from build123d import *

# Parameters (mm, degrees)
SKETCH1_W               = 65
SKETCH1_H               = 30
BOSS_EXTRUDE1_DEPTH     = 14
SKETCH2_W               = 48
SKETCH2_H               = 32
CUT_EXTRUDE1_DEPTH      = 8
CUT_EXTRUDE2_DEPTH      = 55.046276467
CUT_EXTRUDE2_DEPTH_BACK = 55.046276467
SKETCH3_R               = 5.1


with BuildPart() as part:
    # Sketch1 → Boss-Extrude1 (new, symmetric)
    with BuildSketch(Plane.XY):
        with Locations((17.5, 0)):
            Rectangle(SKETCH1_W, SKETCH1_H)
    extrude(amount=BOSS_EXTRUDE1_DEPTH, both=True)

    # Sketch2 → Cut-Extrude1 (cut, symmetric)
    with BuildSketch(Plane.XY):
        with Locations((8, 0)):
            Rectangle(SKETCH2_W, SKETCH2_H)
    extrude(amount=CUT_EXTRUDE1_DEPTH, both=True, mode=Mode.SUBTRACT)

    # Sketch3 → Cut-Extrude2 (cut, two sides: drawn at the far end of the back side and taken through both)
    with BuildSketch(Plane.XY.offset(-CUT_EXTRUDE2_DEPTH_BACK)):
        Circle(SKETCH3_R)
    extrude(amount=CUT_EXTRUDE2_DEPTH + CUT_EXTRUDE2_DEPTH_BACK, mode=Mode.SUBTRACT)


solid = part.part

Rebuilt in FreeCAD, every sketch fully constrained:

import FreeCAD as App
import Part
import Sketcher
Q = App.Units.Quantity


def add_polygon(sketch, points):
    """Adds a closed chain of lines whose ends are joined by coincident constraints."""
    first, n = sketch.GeometryCount, len(points)
    for a, b in zip(points, points[1:] + points[:1]):
        sketch.addGeometry(Part.LineSegment(App.Vector(*a, 0), App.Vector(*b, 0)), False)
    for i in range(n):
        sketch.addConstraint(Sketcher.Constraint("Coincident", first + i, 2, first + (i + 1) % n, 1))

doc = App.newDocument("Part")
params = doc.addObject("Spreadsheet::Sheet", "Params")
for row, (alias, value) in enumerate([
    ("sketch1_width", "65 mm"),
    ("sketch1_height", "30 mm"),
    ("pad1_length", "28 mm"),
    ("sketch2_width", "48 mm"),
    ("sketch2_height", "32 mm"),
    ("pocket1_length", "16 mm"),
    ("sketch3_diameter", "10.2 mm"),
], start=1):
    params.set(f"A{row}", alias)
    params.set(f"B{row}", "=" + value)
    params.setAlias(f"B{row}", alias)

body = doc.addObject("PartDesign::Body", "Body")

# Sketch on XY plane
sketch1 = body.newObject("Sketcher::SketchObject", "Sketch")
sketch1.AttachmentSupport = (doc.getObject("XY_Plane"), [""])
sketch1.MapMode = "FlatFace"
add_polygon(sketch1, [(-15, 15), (-15, -15), (50, -15), (50, 15)])  # lines 0-3
sketch1.addConstraint(Sketcher.Constraint("Vertical", 0))
sketch1.addConstraint(Sketcher.Constraint("Horizontal", 1))
sketch1.addConstraint(Sketcher.Constraint("Vertical", 2))
sketch1.addConstraint(Sketcher.Constraint("Horizontal", 3))
sketch1.addConstraint(Sketcher.Constraint("DistanceX", 1, 1, 1, 2, Q("65 mm")))
sketch1.addConstraint(Sketcher.Constraint("DistanceY", 0, 2, 0, 1, Q("30 mm")))
sketch1.addConstraint(Sketcher.Constraint("DistanceX", 0, 2, -1, 1, Q("15 mm")))
sketch1.addConstraint(Sketcher.Constraint("DistanceY", 0, 2, -1, 1, Q("15 mm")))
sketch1.setExpression("Constraints[8]", "Params.sketch1_width")
sketch1.setExpression("Constraints[9]", "Params.sketch1_height")
pad1 = body.newObject("PartDesign::Pad", "Pad")
pad1.Profile = sketch1
pad1.setExpression("Length", "Params.pad1_length")
pad1.Midplane = True

# Sketch on XY plane
sketch2 = body.newObject("Sketcher::SketchObject", "Sketch001")
sketch2.AttachmentSupport = (doc.getObject("XY_Plane"), [""])
sketch2.MapMode = "FlatFace"
add_polygon(sketch2, [(-16, 16), (-16, -16), (32, -16), (32, 16)])  # lines 0-3
sketch2.addConstraint(Sketcher.Constraint("Vertical", 0))
sketch2.addConstraint(Sketcher.Constraint("Horizontal", 1))
sketch2.addConstraint(Sketcher.Constraint("Vertical", 2))
sketch2.addConstraint(Sketcher.Constraint("Horizontal", 3))
sketch2.addConstraint(Sketcher.Constraint("DistanceX", 1, 1, 1, 2, Q("48 mm")))
sketch2.addConstraint(Sketcher.Constraint("DistanceY", 0, 2, 0, 1, Q("32 mm")))
sketch2.addConstraint(Sketcher.Constraint("DistanceX", 0, 2, -1, 1, Q("16 mm")))
sketch2.addConstraint(Sketcher.Constraint("DistanceY", 0, 2, -1, 1, Q("16 mm")))
sketch2.setExpression("Constraints[8]", "Params.sketch2_width")
sketch2.setExpression("Constraints[9]", "Params.sketch2_height")
pocket1 = body.newObject("PartDesign::Pocket", "Pocket")
pocket1.Profile = sketch2
pocket1.setExpression("Length", "Params.pocket1_length")
pocket1.Midplane = True

# Sketch on XY plane
sketch3 = body.newObject("Sketcher::SketchObject", "Sketch002")
sketch3.AttachmentSupport = (doc.getObject("XY_Plane"), [""])
sketch3.MapMode = "FlatFace"
sketch3.addGeometry(Part.Circle(App.Vector(0, 0, 0), App.Vector(0, 0, 1), 5), False)
sketch3.addConstraint(Sketcher.Constraint("Coincident", 0, 3, -1, 1))
sketch3.addConstraint(Sketcher.Constraint("Diameter", 0, Q("10.2 mm")))
sketch3.setExpression("Constraints[1]", "Params.sketch3_diameter")
pocket2 = body.newObject("PartDesign::Pocket", "Pocket001")
pocket2.Profile = sketch3
pocket2.Type = "ThroughAll"
pocket2.Midplane = True

doc.recompute()
